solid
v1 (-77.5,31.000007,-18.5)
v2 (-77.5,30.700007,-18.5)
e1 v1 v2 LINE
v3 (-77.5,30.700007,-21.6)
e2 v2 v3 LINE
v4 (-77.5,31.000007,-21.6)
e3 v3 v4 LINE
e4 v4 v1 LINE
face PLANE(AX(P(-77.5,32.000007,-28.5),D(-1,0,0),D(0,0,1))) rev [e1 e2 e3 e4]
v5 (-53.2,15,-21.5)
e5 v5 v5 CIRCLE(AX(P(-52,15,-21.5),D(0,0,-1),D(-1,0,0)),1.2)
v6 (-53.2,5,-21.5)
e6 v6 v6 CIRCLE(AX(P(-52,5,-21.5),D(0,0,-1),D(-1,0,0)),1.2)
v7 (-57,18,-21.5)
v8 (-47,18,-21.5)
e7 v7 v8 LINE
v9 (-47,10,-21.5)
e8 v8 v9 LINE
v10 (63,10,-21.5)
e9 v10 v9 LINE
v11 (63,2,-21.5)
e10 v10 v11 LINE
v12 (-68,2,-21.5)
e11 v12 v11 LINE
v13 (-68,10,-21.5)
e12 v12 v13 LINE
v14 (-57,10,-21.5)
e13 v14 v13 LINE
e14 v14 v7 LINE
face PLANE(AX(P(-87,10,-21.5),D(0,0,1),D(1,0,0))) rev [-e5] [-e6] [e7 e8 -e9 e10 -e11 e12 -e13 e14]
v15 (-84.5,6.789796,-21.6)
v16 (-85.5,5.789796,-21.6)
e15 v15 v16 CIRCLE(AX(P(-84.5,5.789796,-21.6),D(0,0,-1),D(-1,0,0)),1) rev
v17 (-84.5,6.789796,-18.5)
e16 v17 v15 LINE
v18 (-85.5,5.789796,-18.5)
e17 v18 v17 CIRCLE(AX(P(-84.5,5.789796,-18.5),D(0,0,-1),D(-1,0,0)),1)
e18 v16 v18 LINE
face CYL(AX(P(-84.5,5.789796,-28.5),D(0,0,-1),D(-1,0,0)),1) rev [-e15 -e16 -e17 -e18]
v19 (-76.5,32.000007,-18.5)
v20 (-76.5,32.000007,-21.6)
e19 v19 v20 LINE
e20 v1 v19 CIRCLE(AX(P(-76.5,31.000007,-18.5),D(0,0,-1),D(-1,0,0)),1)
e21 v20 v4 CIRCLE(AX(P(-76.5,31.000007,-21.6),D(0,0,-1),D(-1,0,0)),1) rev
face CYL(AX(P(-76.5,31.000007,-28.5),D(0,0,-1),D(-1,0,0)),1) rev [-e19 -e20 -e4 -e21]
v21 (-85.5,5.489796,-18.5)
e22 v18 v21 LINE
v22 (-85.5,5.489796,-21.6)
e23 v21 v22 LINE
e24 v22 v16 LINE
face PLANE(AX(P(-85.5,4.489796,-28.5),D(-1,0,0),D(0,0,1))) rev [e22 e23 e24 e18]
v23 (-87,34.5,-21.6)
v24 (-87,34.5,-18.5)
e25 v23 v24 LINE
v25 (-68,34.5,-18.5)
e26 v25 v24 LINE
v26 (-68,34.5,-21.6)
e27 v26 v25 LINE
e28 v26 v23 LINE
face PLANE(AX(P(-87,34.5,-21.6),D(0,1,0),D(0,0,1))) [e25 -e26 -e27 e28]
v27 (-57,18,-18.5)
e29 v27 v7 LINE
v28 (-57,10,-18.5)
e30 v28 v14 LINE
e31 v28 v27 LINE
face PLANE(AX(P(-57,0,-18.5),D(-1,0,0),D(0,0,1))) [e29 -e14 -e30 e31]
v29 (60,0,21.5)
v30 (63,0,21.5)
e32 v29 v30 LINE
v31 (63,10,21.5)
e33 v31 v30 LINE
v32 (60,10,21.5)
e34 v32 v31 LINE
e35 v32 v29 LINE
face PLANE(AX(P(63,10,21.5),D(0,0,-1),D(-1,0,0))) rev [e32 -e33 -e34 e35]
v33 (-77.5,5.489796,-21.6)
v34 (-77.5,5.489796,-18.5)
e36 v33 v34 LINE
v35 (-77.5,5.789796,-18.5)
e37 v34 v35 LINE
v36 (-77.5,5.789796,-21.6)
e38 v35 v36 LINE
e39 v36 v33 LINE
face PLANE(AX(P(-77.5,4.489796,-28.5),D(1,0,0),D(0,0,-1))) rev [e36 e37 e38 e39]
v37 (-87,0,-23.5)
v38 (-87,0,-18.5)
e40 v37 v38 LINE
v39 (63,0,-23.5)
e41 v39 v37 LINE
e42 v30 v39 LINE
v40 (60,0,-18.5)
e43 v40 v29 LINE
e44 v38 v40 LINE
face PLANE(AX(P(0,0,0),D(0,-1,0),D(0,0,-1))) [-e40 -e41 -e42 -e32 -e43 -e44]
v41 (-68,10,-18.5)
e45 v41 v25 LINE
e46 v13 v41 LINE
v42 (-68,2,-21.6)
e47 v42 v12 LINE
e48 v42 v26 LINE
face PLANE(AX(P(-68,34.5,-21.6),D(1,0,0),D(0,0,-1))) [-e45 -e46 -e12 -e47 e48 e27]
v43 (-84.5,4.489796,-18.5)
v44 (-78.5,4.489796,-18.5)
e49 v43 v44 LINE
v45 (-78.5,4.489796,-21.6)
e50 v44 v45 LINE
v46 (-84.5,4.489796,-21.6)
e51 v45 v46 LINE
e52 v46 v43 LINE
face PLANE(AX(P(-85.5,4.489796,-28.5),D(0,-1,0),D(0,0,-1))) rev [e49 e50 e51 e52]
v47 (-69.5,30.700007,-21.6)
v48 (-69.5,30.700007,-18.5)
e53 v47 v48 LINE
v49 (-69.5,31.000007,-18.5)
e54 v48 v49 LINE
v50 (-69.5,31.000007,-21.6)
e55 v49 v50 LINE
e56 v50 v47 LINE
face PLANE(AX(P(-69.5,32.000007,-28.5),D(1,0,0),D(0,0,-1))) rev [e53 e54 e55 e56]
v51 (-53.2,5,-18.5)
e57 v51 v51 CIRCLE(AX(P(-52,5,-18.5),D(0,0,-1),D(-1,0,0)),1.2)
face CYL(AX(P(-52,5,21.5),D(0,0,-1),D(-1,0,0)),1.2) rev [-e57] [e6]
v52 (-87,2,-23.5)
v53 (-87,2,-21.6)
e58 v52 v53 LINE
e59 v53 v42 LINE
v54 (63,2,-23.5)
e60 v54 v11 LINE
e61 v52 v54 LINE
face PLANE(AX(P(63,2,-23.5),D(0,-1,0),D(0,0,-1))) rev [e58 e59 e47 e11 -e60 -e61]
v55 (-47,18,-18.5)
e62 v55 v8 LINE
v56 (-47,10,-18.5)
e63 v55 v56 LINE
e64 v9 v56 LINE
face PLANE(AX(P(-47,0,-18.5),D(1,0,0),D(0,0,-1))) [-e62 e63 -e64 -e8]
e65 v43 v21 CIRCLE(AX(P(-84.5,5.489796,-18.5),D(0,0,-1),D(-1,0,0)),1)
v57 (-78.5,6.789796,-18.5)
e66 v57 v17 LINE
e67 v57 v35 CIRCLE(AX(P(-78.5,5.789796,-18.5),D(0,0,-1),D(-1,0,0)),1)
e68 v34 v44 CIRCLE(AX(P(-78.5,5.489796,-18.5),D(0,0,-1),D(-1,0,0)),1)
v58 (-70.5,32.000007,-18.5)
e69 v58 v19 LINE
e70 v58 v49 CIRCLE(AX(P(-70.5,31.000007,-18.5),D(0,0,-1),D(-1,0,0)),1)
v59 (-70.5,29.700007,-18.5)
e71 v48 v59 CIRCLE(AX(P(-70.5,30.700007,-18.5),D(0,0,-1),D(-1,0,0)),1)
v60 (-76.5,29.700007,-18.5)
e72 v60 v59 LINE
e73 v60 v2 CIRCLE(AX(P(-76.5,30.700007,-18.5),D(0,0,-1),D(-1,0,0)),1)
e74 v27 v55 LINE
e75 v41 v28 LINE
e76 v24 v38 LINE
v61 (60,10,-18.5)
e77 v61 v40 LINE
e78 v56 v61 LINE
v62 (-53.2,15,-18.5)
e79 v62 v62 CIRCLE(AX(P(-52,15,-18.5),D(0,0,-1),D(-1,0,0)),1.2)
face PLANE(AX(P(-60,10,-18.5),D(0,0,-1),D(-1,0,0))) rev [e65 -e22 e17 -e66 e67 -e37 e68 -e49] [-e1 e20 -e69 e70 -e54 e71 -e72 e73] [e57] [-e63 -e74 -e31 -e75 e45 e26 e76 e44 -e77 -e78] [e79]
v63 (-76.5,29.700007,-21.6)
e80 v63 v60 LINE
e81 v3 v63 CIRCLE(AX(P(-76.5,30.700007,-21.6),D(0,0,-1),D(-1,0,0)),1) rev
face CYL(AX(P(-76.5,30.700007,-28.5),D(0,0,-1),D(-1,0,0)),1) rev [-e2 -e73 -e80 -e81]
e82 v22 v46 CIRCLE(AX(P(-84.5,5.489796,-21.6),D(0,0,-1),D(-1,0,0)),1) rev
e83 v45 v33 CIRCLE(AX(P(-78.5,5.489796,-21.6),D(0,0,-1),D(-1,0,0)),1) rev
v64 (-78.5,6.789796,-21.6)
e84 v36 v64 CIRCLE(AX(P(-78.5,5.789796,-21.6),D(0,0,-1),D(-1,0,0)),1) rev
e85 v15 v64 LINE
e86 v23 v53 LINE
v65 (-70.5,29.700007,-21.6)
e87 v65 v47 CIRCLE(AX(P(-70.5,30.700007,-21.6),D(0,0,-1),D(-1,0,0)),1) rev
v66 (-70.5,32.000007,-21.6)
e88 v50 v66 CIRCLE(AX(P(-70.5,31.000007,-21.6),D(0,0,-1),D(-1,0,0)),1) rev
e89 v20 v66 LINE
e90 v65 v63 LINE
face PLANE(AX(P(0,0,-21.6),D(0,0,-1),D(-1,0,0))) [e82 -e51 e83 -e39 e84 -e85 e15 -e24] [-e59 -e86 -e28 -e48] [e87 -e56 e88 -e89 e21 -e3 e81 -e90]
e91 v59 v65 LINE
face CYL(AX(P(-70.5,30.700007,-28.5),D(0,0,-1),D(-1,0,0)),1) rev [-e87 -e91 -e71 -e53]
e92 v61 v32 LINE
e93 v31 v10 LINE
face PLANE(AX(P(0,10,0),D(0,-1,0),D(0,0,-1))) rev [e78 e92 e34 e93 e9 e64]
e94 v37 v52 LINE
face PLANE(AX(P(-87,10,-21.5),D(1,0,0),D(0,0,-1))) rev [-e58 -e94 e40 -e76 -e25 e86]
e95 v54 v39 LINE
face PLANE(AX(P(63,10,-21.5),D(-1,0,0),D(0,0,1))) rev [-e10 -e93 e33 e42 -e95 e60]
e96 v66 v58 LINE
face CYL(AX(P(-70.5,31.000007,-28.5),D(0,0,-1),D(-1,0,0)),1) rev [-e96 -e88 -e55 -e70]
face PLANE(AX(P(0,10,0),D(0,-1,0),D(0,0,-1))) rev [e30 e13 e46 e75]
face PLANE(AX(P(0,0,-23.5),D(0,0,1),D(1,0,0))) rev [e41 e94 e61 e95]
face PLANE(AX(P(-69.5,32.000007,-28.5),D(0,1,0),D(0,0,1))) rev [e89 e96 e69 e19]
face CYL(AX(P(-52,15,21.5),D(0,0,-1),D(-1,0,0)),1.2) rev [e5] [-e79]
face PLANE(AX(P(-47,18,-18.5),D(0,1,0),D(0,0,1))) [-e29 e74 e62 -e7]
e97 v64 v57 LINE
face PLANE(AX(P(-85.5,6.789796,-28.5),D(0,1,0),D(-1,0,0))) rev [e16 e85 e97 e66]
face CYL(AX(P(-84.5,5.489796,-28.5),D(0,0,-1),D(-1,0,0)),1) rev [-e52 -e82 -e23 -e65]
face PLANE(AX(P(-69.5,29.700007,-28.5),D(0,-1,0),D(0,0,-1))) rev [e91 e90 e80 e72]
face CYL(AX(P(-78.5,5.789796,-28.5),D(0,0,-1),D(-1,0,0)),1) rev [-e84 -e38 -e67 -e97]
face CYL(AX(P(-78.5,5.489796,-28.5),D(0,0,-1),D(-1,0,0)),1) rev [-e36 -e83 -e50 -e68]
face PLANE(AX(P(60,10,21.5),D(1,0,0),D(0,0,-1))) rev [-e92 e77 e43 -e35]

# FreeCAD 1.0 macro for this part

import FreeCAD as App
import Part
import Sketcher

V = App.Vector
Q = App.Units.Quantity


def edges_at(feature, points):
    """Names of the edges that pass closest to the given points."""
    edges = feature.Shape.Edges
    near = lambda p: min(range(len(edges)), key=lambda i: edges[i].distToShape(Part.Vertex(*p))[0])
    return sorted({f"Edge{near(p) + 1}" for p in points})


def add_polygon(sketch, points):
    """Adds a closed chain of lines whose ends are joined by coincident constraints."""
    first, n = sketch.GeometryCount, len(points)
    for a, b in zip(points, points[1:] + points[:1]):
        sketch.addGeometry(Part.LineSegment(App.Vector(*a, 0), App.Vector(*b, 0)), False)
    for i in range(n):
        sketch.addConstraint(Sketcher.Constraint("Coincident", first + i, 2, first + (i + 1) % n, 1))

doc = App.newDocument("Part")
params = doc.addObject("Spreadsheet::Sheet", "Params")
for row, (alias, value) in enumerate([
    ("sketch1_width", "147 mm"),
    ("sketch1_width2", "3 mm"),
    ("sketch1_height", "40 mm"),
    ("pad1_length", "10 mm"),
    ("sketch2_width", "10 mm"),
    ("sketch2_height", "18 mm"),
    ("pad2_length", "3 mm"),
    ("sketch3_diameter", "2.4 mm"),
    ("sketch4_width", "150 mm"),
    ("sketch4_height", "2 mm"),
    ("pad3_length", "2 mm"),
    ("sketch5_width", "19 mm"),
    ("sketch5_height", "34.5 mm"),
    ("pad4_length", "3.1 mm"),
    ("sketch6_width", "8 mm"),
    ("sketch6_height", "2.3 mm"),
    ("pocket2_length", "10 mm"),
    ("fillet_radius", "1 mm"),
], start=1):
    params.set(f"A{row}", alias)
    params.set(f"B{row}", "=" + value)
    params.setAlias(f"B{row}", alias)

body = doc.addObject("PartDesign::Body", "Body")

# Sketch on XZ plane
sketch1 = doc.addObject("Sketcher::SketchObject", "Sketch")
body.addObject(sketch1)
sketch1.AttachmentSupport = (doc.XZ_Plane, [""])
sketch1.MapMode = "FlatFace"
add_polygon(sketch1, [(-87, -21.5), (-87, -18.5), (60, -18.5), (60, 21.5), (63, 21.5), (63, -21.5)])  # lines 0-5
sketch1.addConstraint([
    Sketcher.Constraint("Vertical", 0),
    Sketcher.Constraint("Horizontal", 1),
    Sketcher.Constraint("Vertical", 2),
    Sketcher.Constraint("Horizontal", 3),
    Sketcher.Constraint("Vertical", 4),
    Sketcher.Constraint("Horizontal", 5),
    Sketcher.Constraint("Equal", 3, 0),
    Sketcher.Constraint("DistanceX", 1, 1, 1, 2, Q("147 mm")),
    Sketcher.Constraint("DistanceX", 3, 1, 3, 2, Q("3 mm")),
    Sketcher.Constraint("DistanceY", 2, 1, 2, 2, Q("40 mm")),
    Sketcher.Constraint("DistanceX", 0, 2, -1, 1, Q("87 mm")),
    Sketcher.Constraint("DistanceY", 0, 2, -1, 1, Q("18.5 mm")),
])
sketch1.setExpression("Constraints[13]", "Params.sketch1_width")
sketch1.setExpression("Constraints[14]", "Params.sketch1_width2")
sketch1.setExpression("Constraints[15]", "Params.sketch1_height")
pad1 = doc.addObject("PartDesign::Pad", "Pad")
body.addObject(pad1)
pad1.Profile = sketch1
pad1.setExpression("Length", "Params.pad1_length")
pad1.Reversed = True

# Sketch on XY plane
sketch2 = doc.addObject("Sketcher::SketchObject", "Sketch001")
body.addObject(sketch2)
sketch2.AttachmentSupport = (doc.XY_Plane, [""])
sketch2.MapMode = "FlatFace"
sketch2.AttachmentOffset = App.Placement(V(0, 0, -21.5), App.Rotation())
add_polygon(sketch2, [(-47, 18), (-47, 0), (-57, 0), (-57, 18)])  # lines 0-3
sketch2.addConstraint([
    Sketcher.Constraint("Vertical", 0),
    Sketcher.Constraint("Horizontal", 1),
    Sketcher.Constraint("Vertical", 2),
    Sketcher.Constraint("Horizontal", 3),
    Sketcher.Constraint("PointOnObject", 0, 2, -1),
    Sketcher.Constraint("DistanceX", 1, 2, 1, 1, Q("10 mm")),
    Sketcher.Constraint("DistanceY", 0, 2, 0, 1, Q("18 mm")),
    Sketcher.Constraint("DistanceX", 0, 2, -1, 1, Q("47 mm")),
])
sketch2.setExpression("Constraints[9]", "Params.sketch2_width")
sketch2.setExpression("Constraints[10]", "Params.sketch2_height")
pad2 = doc.addObject("PartDesign::Pad", "Pad001")
body.addObject(pad2)
pad2.Profile = sketch2
pad2.setExpression("Length", "Params.pad2_length")

# Sketch on XY plane
sketch3 = doc.addObject("Sketcher::SketchObject", "Sketch002")
body.addObject(sketch3)
sketch3.AttachmentSupport = (doc.XY_Plane, [""])
sketch3.MapMode = "FlatFace"
sketch3.AttachmentOffset = App.Placement(V(0, 0, -21.5), App.Rotation())
sketch3.addGeometry([
    Part.Circle(V(-52, 15, 0), V(0, 0, 1), 1.2),
    Part.Circle(V(-52, 5, 0), V(0, 0, 1), 1.2),
], False)
sketch3.addConstraint([
    Sketcher.Constraint("Equal", 0, 1),
    Sketcher.Constraint("Vertical", 0, 3, 1, 3),
    Sketcher.Constraint("Diameter", 0, Q("2.4 mm")),
    Sketcher.Constraint("DistanceX", 0, 3, -1, 1, Q("52 mm")),
    Sketcher.Constraint("DistanceY", -1, 1, 0, 3, Q("15 mm")),
    Sketcher.Constraint("DistanceY", -1, 1, 1, 3, Q("5 mm")),
])
sketch3.setExpression("Constraints[2]", "Params.sketch3_diameter")
pocket1 = doc.addObject("PartDesign::Pocket", "Pocket")
body.addObject(pocket1)
pocket1.Profile = sketch3
pocket1.Type = "ThroughAll"
pocket1.Reversed = True

# Sketch on XY plane
sketch4 = doc.addObject("Sketcher::SketchObject", "Sketch003")
body.addObject(sketch4)
sketch4.AttachmentSupport = (doc.XY_Plane, [""])
sketch4.MapMode = "FlatFace"
sketch4.AttachmentOffset = App.Placement(V(0, 0, -21.5), App.Rotation())
add_polygon(sketch4, [(63, 2), (63, 0), (-87, 0), (-87, 2)])  # lines 0-3
sketch4.addConstraint([
    Sketcher.Constraint("Vertical", 0),
    Sketcher.Constraint("Horizontal", 1),
    Sketcher.Constraint("Vertical", 2),
    Sketcher.Constraint("Horizontal", 3),
    Sketcher.Constraint("PointOnObject", 0, 2, -1),
    Sketcher.Constraint("DistanceX", 1, 2, 1, 1, Q("150 mm")),
    Sketcher.Constraint("DistanceY", 0, 2, 0, 1, Q("2 mm")),
    Sketcher.Constraint("DistanceX", -1, 1, 0, 2, Q("63 mm")),
])
sketch4.setExpression("Constraints[9]", "Params.sketch4_width")
sketch4.setExpression("Constraints[10]", "Params.sketch4_height")
pad3 = doc.addObject("PartDesign::Pad", "Pad002")
body.addObject(pad3)
pad3.Profile = sketch4
pad3.setExpression("Length", "Params.pad3_length")
pad3.Reversed = True

# Sketch on XY plane
sketch5 = doc.addObject("Sketcher::SketchObject", "Sketch004")
body.addObject(sketch5)
sketch5.AttachmentSupport = (doc.XY_Plane, [""])
sketch5.MapMode = "FlatFace"
sketch5.AttachmentOffset = App.Placement(V(0, 0, -18.5), App.Rotation())
add_polygon(sketch5, [(-87, 34), (-87, 0), (-68, 0), (-68, 34)])  # lines 0-3
sketch5.addConstraint([
    Sketcher.Constraint("Vertical", 0),
    Sketcher.Constraint("Horizontal", 1),
    Sketcher.Constraint("Vertical", 2),
    Sketcher.Constraint("Horizontal", 3),
    Sketcher.Constraint("PointOnObject", 0, 2, -1),
    Sketcher.Constraint("DistanceX", 1, 1, 1, 2, Q("19 mm")),
    Sketcher.Constraint("DistanceY", 0, 2, 0, 1, Q("34.5 mm")),
    Sketcher.Constraint("DistanceX", 0, 2, -1, 1, Q("87 mm")),
])
sketch5.setExpression("Constraints[9]", "Params.sketch5_width")
sketch5.setExpression("Constraints[10]", "Params.sketch5_height")
pad4 = doc.addObject("PartDesign::Pad", "Pad003")
body.addObject(pad4)
pad4.Profile = sketch5
pad4.setExpression("Length", "Params.pad4_length")
pad4.Reversed = True

# Sketch on XY plane
sketch6 = doc.addObject("Sketcher::SketchObject", "Sketch005")
body.addObject(sketch6)
sketch6.AttachmentSupport = (doc.XY_Plane, [""])
sketch6.MapMode = "FlatFace"
sketch6.AttachmentOffset = App.Placement(V(0, 0, -18.5), App.Rotation())
add_polygon(sketch6, [(-77.5, 32), (-77.5, 29.7), (-69.5, 29.7), (-69.5, 32)])  # lines 0-3
add_polygon(sketch6, [(-85.5, 6.8), (-85.5, 4.5), (-77.5, 4.5), (-77.5, 6.8)])  # lines 4-7
sketch6.addConstraint([
    Sketcher.Constraint("Vertical", 0),
    Sketcher.Constraint("Horizontal", 1),
    Sketcher.Constraint("Vertical", 2),
    Sketcher.Constraint("Horizontal", 3),
    Sketcher.Constraint("Vertical", 4),
    Sketcher.Constraint("Horizontal", 5),
    Sketcher.Constraint("Vertical", 6),
    Sketcher.Constraint("Horizontal", 7),
    Sketcher.Constraint("Vertical", 3, 2, 5, 2),
    Sketcher.Constraint("Equal", 3, 5),
    Sketcher.Constraint("Equal", 2, 4),
    Sketcher.Constraint("DistanceX", 1, 1, 1, 2, Q("8 mm")),
    Sketcher.Constraint("DistanceY", 0, 2, 0, 1, Q("2.3 mm")),
    Sketcher.Constraint("DistanceX", 0, 2, -1, 1, Q("77.5 mm")),
    Sketcher.Constraint("DistanceY", 4, 2, 0, 2, Q("25.210211 mm")),
    Sketcher.Constraint("DistanceY", -1, 1, 0, 2, Q("29.700007 mm")),
])
sketch6.setExpression("Constraints[19]", "Params.sketch6_width")
sketch6.setExpression("Constraints[20]", "Params.sketch6_height")
pocket2 = doc.addObject("PartDesign::Pocket", "Pocket001")
body.addObject(pocket2)
pocket2.Profile = sketch6
pocket2.setExpression("Length", "Params.pocket2_length")
doc.recompute()

fillet = doc.addObject("PartDesign::Fillet", "Fillet")
body.addObject(fillet)
fillet.Base = (pocket2, edges_at(pocket2, [
    (-85.5, 4.49, -20.05),
    (-85.5, 6.79, -20.05),
    (-77.5, 6.79, -20.05),
    (-77.5, 4.49, -20.05),
    (-69.5, 32, -20.05),
    (-69.5, 29.7, -20.05),
    (-77.5, 29.7, -20.05),
    (-77.5, 32, -20.05),
]))
fillet.setExpression("Radius", "Params.fillet_radius")

doc.recompute()
